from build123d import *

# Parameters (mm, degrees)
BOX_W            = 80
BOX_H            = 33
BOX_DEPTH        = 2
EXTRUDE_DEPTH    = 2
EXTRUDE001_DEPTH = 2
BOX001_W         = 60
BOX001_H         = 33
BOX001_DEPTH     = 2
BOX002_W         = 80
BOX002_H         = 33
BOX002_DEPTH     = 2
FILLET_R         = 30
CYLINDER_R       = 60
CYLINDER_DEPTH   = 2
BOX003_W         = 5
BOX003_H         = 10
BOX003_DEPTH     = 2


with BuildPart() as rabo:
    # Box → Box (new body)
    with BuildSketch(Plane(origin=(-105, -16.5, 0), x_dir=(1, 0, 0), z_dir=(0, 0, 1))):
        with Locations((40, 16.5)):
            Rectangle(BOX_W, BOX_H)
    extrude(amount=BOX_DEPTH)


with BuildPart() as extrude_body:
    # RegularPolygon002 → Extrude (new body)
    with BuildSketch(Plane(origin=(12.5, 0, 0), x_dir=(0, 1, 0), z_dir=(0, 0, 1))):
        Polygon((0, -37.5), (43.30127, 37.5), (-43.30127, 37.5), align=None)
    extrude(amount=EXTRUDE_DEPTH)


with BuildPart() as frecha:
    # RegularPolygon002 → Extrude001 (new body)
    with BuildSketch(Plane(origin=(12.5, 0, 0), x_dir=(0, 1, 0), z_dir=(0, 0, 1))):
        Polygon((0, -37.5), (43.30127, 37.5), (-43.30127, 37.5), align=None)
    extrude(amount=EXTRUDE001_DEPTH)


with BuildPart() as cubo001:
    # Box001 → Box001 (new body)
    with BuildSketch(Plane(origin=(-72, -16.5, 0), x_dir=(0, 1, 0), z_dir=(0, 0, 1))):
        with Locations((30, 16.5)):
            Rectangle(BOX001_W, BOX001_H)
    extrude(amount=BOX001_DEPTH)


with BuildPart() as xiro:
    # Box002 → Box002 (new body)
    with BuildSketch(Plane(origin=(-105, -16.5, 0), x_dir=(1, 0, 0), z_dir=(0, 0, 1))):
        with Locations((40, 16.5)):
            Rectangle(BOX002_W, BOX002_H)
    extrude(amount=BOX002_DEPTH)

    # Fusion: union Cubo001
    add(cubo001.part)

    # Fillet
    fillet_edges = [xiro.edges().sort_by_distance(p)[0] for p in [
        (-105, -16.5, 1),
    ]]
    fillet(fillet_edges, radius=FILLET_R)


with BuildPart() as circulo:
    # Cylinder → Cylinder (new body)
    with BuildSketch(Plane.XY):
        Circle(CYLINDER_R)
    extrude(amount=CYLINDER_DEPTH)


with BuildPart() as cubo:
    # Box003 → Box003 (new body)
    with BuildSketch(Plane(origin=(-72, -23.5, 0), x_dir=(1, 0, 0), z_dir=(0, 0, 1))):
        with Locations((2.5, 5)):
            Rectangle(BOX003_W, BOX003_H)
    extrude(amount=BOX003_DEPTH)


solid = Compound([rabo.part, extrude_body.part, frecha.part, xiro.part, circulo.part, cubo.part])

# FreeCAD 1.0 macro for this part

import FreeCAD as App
import Part
import Sketcher
Q = App.Units.Quantity


def edges_at(feature, points):
    """Names of the edges that pass closest to the given points."""
    edges = feature.Shape.Edges
    near = lambda p: min(range(len(edges)), key=lambda i: edges[i].distToShape(Part.Vertex(*p))[0])
    return sorted({f"Edge{near(p) + 1}" for p in points})

doc = App.newDocument("Part")
params = doc.addObject("Spreadsheet::Sheet", "Params")
for row, (alias, value) in enumerate([
    ("sketch1_width", "80 mm"),
    ("sketch1_height", "33 mm"),
    ("pad1_length", "2 mm"),
    ("pad2_length", "2 mm"),
    ("pad3_length", "2 mm"),
    ("sketch4_width", "33 mm"),
    ("sketch4_height", "60 mm"),
    ("pad4_length", "2 mm"),
    ("sketch5_width", "80 mm"),
    ("sketch5_height", "33 mm"),
    ("pad5_length", "2 mm"),
    ("fillet_radius", "30 mm"),
    ("sketch6_diameter", "120 mm"),
    ("pad6_length", "2 mm"),
    ("sketch7_width", "5 mm"),
    ("sketch7_height", "10 mm"),
    ("pad7_length", "2 mm"),
], start=1):
    params.set(f"A{row}", alias)
    params.set(f"B{row}", "=" + value)
    params.setAlias(f"B{row}", alias)

body = doc.addObject("PartDesign::Body", "Body")

# Sketch on XY plane
sketch1 = body.newObject("Sketcher::SketchObject", "Sketch")
sketch1.AttachmentSupport = (doc.getObject("XY_Plane"), [""])
sketch1.MapMode = "FlatFace"
sketch1.addGeometry([
    Part.LineSegment(App.Vector(-105, 16.5, 0), App.Vector(-105, -16.5, 0)),
    Part.LineSegment(App.Vector(-105, -16.5, 0), App.Vector(-25, -16.5, 0)),
    Part.LineSegment(App.Vector(-25, -16.5, 0), App.Vector(-25, 16.5, 0)),
    Part.LineSegment(App.Vector(-25, 16.5, 0), App.Vector(-105, 16.5, 0)),
], False)
sketch1.addConstraint([
    Sketcher.Constraint("Coincident", 0, 2, 1, 1),
    Sketcher.Constraint("Coincident", 1, 2, 2, 1),
    Sketcher.Constraint("Coincident", 2, 2, 3, 1),
    Sketcher.Constraint("Coincident", 3, 2, 0, 1),
    Sketcher.Constraint("Vertical", 0),
    Sketcher.Constraint("Horizontal", 1),
    Sketcher.Constraint("Vertical", 2),
    Sketcher.Constraint("Horizontal", 3),
    Sketcher.Constraint("DistanceX", 1, 1, 1, 2, Q("80 mm")),
    Sketcher.Constraint("DistanceY", 0, 2, 0, 1, Q("33 mm")),
    Sketcher.Constraint("DistanceX", 0, 2, -1, 1, Q("105 mm")),
    Sketcher.Constraint("DistanceY", 0, 2, -1, 1, Q("16.5 mm")),
])
sketch1.setExpression("Constraints[8]", "Params.sketch1_width")
sketch1.setExpression("Constraints[9]", "Params.sketch1_height")
pad1 = body.newObject("PartDesign::Pad", "Pad")
pad1.Profile = sketch1
pad1.setExpression("Length", "Params.pad1_length")
body2 = doc.addObject("PartDesign::Body", "Body001")

# Sketch on XY plane
sketch2 = body2.newObject("Sketcher::SketchObject", "Sketch001")
sketch2.AttachmentSupport = (doc.getObject("XY_Plane001"), [""])
sketch2.MapMode = "FlatFace"
sketch2.addGeometry([
    Part.LineSegment(App.Vector(50, 0, 0), App.Vector(-25, 43.30127, 0)),
    Part.LineSegment(App.Vector(-25, 43.30127, 0), App.Vector(-25, -43.30127, 0)),
    Part.LineSegment(App.Vector(-25, -43.30127, 0), App.Vector(50, 0, 0)),
], False)
sketch2.addConstraint([
    Sketcher.Constraint("Coincident", 0, 2, 1, 1),
    Sketcher.Constraint("Coincident", 1, 2, 2, 1),
    Sketcher.Constraint("Coincident", 2, 2, 0, 1),
    Sketcher.Constraint("Vertical", 1),
    Sketcher.Constraint("PointOnObject", 2, 2, -1),
    Sketcher.Constraint("Equal", 0, 2),
    Sketcher.Constraint("Angle", 0, Q("150 deg")),
    Sketcher.Constraint("DistanceX", 0, 2, -1, 1, Q("25 mm")),
    Sketcher.Constraint("DistanceX", -1, 1, 2, 2, Q("50 mm")),
])
pad2 = body2.newObject("PartDesign::Pad", "Pad001")
pad2.Profile = sketch2
pad2.setExpression("Length", "Params.pad2_length")
body3 = doc.addObject("PartDesign::Body", "Body002")

# Sketch on XY plane
sketch3 = body3.newObject("Sketcher::SketchObject", "Sketch002")
sketch3.AttachmentSupport = (doc.getObject("XY_Plane002"), [""])
sketch3.MapMode = "FlatFace"
sketch3.addGeometry([
    Part.LineSegment(App.Vector(50, 0, 0), App.Vector(-25, 43.30127, 0)),
    Part.LineSegment(App.Vector(-25, 43.30127, 0), App.Vector(-25, -43.30127, 0)),
    Part.LineSegment(App.Vector(-25, -43.30127, 0), App.Vector(50, 0, 0)),
], False)
sketch3.addConstraint([
    Sketcher.Constraint("Coincident", 0, 2, 1, 1),
    Sketcher.Constraint("Coincident", 1, 2, 2, 1),
    Sketcher.Constraint("Coincident", 2, 2, 0, 1),
    Sketcher.Constraint("Vertical", 1),
    Sketcher.Constraint("PointOnObject", 2, 2, -1),
    Sketcher.Constraint("Equal", 0, 2),
    Sketcher.Constraint("Angle", 0, Q("150 deg")),
    Sketcher.Constraint("DistanceX", 0, 2, -1, 1, Q("25 mm")),
    Sketcher.Constraint("DistanceX", -1, 1, 2, 2, Q("50 mm")),
])
pad3 = body3.newObject("PartDesign::Pad", "Pad002")
pad3.Profile = sketch3
pad3.setExpression("Length", "Params.pad3_length")
body4 = doc.addObject("PartDesign::Body", "Body003")

# Sketch on XY plane
sketch4 = body4.newObject("Sketcher::SketchObject", "Sketch003")
sketch4.AttachmentSupport = (doc.getObject("XY_Plane003"), [""])
sketch4.MapMode = "FlatFace"
sketch4.addGeometry([
    Part.LineSegment(App.Vector(-105, -16.5, 0), App.Vector(-72, -16.5, 0)),
    Part.LineSegment(App.Vector(-72, -16.5, 0), App.Vector(-72, 43.5, 0)),
    Part.LineSegment(App.Vector(-72, 43.5, 0), App.Vector(-105, 43.5, 0)),
    Part.LineSegment(App.Vector(-105, 43.5, 0), App.Vector(-105, -16.5, 0)),
], False)
sketch4.addConstraint([
    Sketcher.Constraint("Coincident", 0, 2, 1, 1),
    Sketcher.Constraint("Coincident", 1, 2, 2, 1),
    Sketcher.Constraint("Coincident", 2, 2, 3, 1),
    Sketcher.Constraint("Coincident", 3, 2, 0, 1),
    Sketcher.Constraint("Horizontal", 0),
    Sketcher.Constraint("Vertical", 1),
    Sketcher.Constraint("Horizontal", 2),
    Sketcher.Constraint("Vertical", 3),
    Sketcher.Constraint("DistanceX", 0, 1, 0, 2, Q("33 mm")),
    Sketcher.Constraint("DistanceY", 1, 1, 1, 2, Q("60 mm")),
    Sketcher.Constraint("DistanceX", 0, 2, -1, 1, Q("72 mm")),
    Sketcher.Constraint("DistanceY", 0, 2, -1, 1, Q("16.5 mm")),
])
sketch4.setExpression("Constraints[8]", "Params.sketch4_width")
sketch4.setExpression("Constraints[9]", "Params.sketch4_height")
pad4 = body4.newObject("PartDesign::Pad", "Pad003")
pad4.Profile = sketch4
pad4.setExpression("Length", "Params.pad4_length")
body5 = doc.addObject("PartDesign::Body", "Body004")

# Sketch on XY plane
sketch5 = body5.newObject("Sketcher::SketchObject", "Sketch004")
sketch5.AttachmentSupport = (doc.getObject("XY_Plane004"), [""])
sketch5.MapMode = "FlatFace"
sketch5.addGeometry([
    Part.LineSegment(App.Vector(-105, 16.5, 0), App.Vector(-105, -16.5, 0)),
    Part.LineSegment(App.Vector(-105, -16.5, 0), App.Vector(-25, -16.5, 0)),
    Part.LineSegment(App.Vector(-25, -16.5, 0), App.Vector(-25, 16.5, 0)),
    Part.LineSegment(App.Vector(-25, 16.5, 0), App.Vector(-105, 16.5, 0)),
], False)
sketch5.addConstraint([
    Sketcher.Constraint("Coincident", 0, 2, 1, 1),
    Sketcher.Constraint("Coincident", 1, 2, 2, 1),
    Sketcher.Constraint("Coincident", 2, 2, 3, 1),
    Sketcher.Constraint("Coincident", 3, 2, 0, 1),
    Sketcher.Constraint("Vertical", 0),
    Sketcher.Constraint("Horizontal", 1),
    Sketcher.Constraint("Vertical", 2),
    Sketcher.Constraint("Horizontal", 3),
    Sketcher.Constraint("DistanceX", 1, 1, 1, 2, Q("80 mm")),
    Sketcher.Constraint("DistanceY", 0, 2, 0, 1, Q("33 mm")),
    Sketcher.Constraint("DistanceX", 0, 2, -1, 1, Q("105 mm")),
    Sketcher.Constraint("DistanceY", 0, 2, -1, 1, Q("16.5 mm")),
])
sketch5.setExpression("Constraints[8]", "Params.sketch5_width")
sketch5.setExpression("Constraints[9]", "Params.sketch5_height")
pad5 = body5.newObject("PartDesign::Pad", "Pad004")
pad5.Profile = sketch5
pad5.setExpression("Length", "Params.pad5_length")
doc.recompute()

boolean = body5.newObject("PartDesign::Boolean", "Boolean")
boolean.Type = "Fuse"
boolean.addObjects([body4])
doc.recompute()

fillet = body5.newObject("PartDesign::Fillet", "Fillet")
fillet.Base = (boolean, edges_at(boolean, [(-105, -16.5, 1)]))
fillet.setExpression("Radius", "Params.fillet_radius")
body6 = doc.addObject("PartDesign::Body", "Body005")

# Sketch on XY plane
sketch6 = body6.newObject("Sketcher::SketchObject", "Sketch005")
sketch6.AttachmentSupport = (doc.getObject("XY_Plane005"), [""])
sketch6.MapMode = "FlatFace"
sketch6.addGeometry(Part.Circle(App.Vector(0, 0, 0), App.Vector(0, 0, 1), 60), False)
sketch6.addConstraint([
    Sketcher.Constraint("Coincident", 0, 3, -1, 1),
    Sketcher.Constraint("Diameter", 0, Q("120 mm")),
])
sketch6.setExpression("Constraints[1]", "Params.sketch6_diameter")
pad6 = body6.newObject("PartDesign::Pad", "Pad005")
pad6.Profile = sketch6
pad6.setExpression("Length", "Params.pad6_length")
body7 = doc.addObject("PartDesign::Body", "Body006")

# Sketch on XY plane
sketch7 = body7.newObject("Sketcher::SketchObject", "Sketch006")
sketch7.AttachmentSupport = (doc.getObject("XY_Plane006"), [""])
sketch7.MapMode = "FlatFace"
sketch7.addGeometry([
    Part.LineSegment(App.Vector(-72, -13.5, 0), App.Vector(-72, -23.5, 0)),
    Part.LineSegment(App.Vector(-72, -23.5, 0), App.Vector(-67, -23.5, 0)),
    Part.LineSegment(App.Vector(-67, -23.5, 0), App.Vector(-67, -13.5, 0)),
    Part.LineSegment(App.Vector(-67, -13.5, 0), App.Vector(-72, -13.5, 0)),
], False)
sketch7.addConstraint([
    Sketcher.Constraint("Coincident", 0, 2, 1, 1),
    Sketcher.Constraint("Coincident", 1, 2, 2, 1),
    Sketcher.Constraint("Coincident", 2, 2, 3, 1),
    Sketcher.Constraint("Coincident", 3, 2, 0, 1),
    Sketcher.Constraint("Vertical", 0),
    Sketcher.Constraint("Horizontal", 1),
    Sketcher.Constraint("Vertical", 2),
    Sketcher.Constraint("Horizontal", 3),
    Sketcher.Constraint("DistanceX", 1, 1, 1, 2, Q("5 mm")),
    Sketcher.Constraint("DistanceY", 0, 2, 0, 1, Q("10 mm")),
    Sketcher.Constraint("DistanceX", 0, 2, -1, 1, Q("72 mm")),
    Sketcher.Constraint("DistanceY", 0, 2, -1, 1, Q("23.5 mm")),
])
sketch7.setExpression("Constraints[8]", "Params.sketch7_width")
sketch7.setExpression("Constraints[9]", "Params.sketch7_height")
pad7 = body7.newObject("PartDesign::Pad", "Pad006")
pad7.Profile = sketch7
pad7.setExpression("Length", "Params.pad7_length")

doc.recompute()
